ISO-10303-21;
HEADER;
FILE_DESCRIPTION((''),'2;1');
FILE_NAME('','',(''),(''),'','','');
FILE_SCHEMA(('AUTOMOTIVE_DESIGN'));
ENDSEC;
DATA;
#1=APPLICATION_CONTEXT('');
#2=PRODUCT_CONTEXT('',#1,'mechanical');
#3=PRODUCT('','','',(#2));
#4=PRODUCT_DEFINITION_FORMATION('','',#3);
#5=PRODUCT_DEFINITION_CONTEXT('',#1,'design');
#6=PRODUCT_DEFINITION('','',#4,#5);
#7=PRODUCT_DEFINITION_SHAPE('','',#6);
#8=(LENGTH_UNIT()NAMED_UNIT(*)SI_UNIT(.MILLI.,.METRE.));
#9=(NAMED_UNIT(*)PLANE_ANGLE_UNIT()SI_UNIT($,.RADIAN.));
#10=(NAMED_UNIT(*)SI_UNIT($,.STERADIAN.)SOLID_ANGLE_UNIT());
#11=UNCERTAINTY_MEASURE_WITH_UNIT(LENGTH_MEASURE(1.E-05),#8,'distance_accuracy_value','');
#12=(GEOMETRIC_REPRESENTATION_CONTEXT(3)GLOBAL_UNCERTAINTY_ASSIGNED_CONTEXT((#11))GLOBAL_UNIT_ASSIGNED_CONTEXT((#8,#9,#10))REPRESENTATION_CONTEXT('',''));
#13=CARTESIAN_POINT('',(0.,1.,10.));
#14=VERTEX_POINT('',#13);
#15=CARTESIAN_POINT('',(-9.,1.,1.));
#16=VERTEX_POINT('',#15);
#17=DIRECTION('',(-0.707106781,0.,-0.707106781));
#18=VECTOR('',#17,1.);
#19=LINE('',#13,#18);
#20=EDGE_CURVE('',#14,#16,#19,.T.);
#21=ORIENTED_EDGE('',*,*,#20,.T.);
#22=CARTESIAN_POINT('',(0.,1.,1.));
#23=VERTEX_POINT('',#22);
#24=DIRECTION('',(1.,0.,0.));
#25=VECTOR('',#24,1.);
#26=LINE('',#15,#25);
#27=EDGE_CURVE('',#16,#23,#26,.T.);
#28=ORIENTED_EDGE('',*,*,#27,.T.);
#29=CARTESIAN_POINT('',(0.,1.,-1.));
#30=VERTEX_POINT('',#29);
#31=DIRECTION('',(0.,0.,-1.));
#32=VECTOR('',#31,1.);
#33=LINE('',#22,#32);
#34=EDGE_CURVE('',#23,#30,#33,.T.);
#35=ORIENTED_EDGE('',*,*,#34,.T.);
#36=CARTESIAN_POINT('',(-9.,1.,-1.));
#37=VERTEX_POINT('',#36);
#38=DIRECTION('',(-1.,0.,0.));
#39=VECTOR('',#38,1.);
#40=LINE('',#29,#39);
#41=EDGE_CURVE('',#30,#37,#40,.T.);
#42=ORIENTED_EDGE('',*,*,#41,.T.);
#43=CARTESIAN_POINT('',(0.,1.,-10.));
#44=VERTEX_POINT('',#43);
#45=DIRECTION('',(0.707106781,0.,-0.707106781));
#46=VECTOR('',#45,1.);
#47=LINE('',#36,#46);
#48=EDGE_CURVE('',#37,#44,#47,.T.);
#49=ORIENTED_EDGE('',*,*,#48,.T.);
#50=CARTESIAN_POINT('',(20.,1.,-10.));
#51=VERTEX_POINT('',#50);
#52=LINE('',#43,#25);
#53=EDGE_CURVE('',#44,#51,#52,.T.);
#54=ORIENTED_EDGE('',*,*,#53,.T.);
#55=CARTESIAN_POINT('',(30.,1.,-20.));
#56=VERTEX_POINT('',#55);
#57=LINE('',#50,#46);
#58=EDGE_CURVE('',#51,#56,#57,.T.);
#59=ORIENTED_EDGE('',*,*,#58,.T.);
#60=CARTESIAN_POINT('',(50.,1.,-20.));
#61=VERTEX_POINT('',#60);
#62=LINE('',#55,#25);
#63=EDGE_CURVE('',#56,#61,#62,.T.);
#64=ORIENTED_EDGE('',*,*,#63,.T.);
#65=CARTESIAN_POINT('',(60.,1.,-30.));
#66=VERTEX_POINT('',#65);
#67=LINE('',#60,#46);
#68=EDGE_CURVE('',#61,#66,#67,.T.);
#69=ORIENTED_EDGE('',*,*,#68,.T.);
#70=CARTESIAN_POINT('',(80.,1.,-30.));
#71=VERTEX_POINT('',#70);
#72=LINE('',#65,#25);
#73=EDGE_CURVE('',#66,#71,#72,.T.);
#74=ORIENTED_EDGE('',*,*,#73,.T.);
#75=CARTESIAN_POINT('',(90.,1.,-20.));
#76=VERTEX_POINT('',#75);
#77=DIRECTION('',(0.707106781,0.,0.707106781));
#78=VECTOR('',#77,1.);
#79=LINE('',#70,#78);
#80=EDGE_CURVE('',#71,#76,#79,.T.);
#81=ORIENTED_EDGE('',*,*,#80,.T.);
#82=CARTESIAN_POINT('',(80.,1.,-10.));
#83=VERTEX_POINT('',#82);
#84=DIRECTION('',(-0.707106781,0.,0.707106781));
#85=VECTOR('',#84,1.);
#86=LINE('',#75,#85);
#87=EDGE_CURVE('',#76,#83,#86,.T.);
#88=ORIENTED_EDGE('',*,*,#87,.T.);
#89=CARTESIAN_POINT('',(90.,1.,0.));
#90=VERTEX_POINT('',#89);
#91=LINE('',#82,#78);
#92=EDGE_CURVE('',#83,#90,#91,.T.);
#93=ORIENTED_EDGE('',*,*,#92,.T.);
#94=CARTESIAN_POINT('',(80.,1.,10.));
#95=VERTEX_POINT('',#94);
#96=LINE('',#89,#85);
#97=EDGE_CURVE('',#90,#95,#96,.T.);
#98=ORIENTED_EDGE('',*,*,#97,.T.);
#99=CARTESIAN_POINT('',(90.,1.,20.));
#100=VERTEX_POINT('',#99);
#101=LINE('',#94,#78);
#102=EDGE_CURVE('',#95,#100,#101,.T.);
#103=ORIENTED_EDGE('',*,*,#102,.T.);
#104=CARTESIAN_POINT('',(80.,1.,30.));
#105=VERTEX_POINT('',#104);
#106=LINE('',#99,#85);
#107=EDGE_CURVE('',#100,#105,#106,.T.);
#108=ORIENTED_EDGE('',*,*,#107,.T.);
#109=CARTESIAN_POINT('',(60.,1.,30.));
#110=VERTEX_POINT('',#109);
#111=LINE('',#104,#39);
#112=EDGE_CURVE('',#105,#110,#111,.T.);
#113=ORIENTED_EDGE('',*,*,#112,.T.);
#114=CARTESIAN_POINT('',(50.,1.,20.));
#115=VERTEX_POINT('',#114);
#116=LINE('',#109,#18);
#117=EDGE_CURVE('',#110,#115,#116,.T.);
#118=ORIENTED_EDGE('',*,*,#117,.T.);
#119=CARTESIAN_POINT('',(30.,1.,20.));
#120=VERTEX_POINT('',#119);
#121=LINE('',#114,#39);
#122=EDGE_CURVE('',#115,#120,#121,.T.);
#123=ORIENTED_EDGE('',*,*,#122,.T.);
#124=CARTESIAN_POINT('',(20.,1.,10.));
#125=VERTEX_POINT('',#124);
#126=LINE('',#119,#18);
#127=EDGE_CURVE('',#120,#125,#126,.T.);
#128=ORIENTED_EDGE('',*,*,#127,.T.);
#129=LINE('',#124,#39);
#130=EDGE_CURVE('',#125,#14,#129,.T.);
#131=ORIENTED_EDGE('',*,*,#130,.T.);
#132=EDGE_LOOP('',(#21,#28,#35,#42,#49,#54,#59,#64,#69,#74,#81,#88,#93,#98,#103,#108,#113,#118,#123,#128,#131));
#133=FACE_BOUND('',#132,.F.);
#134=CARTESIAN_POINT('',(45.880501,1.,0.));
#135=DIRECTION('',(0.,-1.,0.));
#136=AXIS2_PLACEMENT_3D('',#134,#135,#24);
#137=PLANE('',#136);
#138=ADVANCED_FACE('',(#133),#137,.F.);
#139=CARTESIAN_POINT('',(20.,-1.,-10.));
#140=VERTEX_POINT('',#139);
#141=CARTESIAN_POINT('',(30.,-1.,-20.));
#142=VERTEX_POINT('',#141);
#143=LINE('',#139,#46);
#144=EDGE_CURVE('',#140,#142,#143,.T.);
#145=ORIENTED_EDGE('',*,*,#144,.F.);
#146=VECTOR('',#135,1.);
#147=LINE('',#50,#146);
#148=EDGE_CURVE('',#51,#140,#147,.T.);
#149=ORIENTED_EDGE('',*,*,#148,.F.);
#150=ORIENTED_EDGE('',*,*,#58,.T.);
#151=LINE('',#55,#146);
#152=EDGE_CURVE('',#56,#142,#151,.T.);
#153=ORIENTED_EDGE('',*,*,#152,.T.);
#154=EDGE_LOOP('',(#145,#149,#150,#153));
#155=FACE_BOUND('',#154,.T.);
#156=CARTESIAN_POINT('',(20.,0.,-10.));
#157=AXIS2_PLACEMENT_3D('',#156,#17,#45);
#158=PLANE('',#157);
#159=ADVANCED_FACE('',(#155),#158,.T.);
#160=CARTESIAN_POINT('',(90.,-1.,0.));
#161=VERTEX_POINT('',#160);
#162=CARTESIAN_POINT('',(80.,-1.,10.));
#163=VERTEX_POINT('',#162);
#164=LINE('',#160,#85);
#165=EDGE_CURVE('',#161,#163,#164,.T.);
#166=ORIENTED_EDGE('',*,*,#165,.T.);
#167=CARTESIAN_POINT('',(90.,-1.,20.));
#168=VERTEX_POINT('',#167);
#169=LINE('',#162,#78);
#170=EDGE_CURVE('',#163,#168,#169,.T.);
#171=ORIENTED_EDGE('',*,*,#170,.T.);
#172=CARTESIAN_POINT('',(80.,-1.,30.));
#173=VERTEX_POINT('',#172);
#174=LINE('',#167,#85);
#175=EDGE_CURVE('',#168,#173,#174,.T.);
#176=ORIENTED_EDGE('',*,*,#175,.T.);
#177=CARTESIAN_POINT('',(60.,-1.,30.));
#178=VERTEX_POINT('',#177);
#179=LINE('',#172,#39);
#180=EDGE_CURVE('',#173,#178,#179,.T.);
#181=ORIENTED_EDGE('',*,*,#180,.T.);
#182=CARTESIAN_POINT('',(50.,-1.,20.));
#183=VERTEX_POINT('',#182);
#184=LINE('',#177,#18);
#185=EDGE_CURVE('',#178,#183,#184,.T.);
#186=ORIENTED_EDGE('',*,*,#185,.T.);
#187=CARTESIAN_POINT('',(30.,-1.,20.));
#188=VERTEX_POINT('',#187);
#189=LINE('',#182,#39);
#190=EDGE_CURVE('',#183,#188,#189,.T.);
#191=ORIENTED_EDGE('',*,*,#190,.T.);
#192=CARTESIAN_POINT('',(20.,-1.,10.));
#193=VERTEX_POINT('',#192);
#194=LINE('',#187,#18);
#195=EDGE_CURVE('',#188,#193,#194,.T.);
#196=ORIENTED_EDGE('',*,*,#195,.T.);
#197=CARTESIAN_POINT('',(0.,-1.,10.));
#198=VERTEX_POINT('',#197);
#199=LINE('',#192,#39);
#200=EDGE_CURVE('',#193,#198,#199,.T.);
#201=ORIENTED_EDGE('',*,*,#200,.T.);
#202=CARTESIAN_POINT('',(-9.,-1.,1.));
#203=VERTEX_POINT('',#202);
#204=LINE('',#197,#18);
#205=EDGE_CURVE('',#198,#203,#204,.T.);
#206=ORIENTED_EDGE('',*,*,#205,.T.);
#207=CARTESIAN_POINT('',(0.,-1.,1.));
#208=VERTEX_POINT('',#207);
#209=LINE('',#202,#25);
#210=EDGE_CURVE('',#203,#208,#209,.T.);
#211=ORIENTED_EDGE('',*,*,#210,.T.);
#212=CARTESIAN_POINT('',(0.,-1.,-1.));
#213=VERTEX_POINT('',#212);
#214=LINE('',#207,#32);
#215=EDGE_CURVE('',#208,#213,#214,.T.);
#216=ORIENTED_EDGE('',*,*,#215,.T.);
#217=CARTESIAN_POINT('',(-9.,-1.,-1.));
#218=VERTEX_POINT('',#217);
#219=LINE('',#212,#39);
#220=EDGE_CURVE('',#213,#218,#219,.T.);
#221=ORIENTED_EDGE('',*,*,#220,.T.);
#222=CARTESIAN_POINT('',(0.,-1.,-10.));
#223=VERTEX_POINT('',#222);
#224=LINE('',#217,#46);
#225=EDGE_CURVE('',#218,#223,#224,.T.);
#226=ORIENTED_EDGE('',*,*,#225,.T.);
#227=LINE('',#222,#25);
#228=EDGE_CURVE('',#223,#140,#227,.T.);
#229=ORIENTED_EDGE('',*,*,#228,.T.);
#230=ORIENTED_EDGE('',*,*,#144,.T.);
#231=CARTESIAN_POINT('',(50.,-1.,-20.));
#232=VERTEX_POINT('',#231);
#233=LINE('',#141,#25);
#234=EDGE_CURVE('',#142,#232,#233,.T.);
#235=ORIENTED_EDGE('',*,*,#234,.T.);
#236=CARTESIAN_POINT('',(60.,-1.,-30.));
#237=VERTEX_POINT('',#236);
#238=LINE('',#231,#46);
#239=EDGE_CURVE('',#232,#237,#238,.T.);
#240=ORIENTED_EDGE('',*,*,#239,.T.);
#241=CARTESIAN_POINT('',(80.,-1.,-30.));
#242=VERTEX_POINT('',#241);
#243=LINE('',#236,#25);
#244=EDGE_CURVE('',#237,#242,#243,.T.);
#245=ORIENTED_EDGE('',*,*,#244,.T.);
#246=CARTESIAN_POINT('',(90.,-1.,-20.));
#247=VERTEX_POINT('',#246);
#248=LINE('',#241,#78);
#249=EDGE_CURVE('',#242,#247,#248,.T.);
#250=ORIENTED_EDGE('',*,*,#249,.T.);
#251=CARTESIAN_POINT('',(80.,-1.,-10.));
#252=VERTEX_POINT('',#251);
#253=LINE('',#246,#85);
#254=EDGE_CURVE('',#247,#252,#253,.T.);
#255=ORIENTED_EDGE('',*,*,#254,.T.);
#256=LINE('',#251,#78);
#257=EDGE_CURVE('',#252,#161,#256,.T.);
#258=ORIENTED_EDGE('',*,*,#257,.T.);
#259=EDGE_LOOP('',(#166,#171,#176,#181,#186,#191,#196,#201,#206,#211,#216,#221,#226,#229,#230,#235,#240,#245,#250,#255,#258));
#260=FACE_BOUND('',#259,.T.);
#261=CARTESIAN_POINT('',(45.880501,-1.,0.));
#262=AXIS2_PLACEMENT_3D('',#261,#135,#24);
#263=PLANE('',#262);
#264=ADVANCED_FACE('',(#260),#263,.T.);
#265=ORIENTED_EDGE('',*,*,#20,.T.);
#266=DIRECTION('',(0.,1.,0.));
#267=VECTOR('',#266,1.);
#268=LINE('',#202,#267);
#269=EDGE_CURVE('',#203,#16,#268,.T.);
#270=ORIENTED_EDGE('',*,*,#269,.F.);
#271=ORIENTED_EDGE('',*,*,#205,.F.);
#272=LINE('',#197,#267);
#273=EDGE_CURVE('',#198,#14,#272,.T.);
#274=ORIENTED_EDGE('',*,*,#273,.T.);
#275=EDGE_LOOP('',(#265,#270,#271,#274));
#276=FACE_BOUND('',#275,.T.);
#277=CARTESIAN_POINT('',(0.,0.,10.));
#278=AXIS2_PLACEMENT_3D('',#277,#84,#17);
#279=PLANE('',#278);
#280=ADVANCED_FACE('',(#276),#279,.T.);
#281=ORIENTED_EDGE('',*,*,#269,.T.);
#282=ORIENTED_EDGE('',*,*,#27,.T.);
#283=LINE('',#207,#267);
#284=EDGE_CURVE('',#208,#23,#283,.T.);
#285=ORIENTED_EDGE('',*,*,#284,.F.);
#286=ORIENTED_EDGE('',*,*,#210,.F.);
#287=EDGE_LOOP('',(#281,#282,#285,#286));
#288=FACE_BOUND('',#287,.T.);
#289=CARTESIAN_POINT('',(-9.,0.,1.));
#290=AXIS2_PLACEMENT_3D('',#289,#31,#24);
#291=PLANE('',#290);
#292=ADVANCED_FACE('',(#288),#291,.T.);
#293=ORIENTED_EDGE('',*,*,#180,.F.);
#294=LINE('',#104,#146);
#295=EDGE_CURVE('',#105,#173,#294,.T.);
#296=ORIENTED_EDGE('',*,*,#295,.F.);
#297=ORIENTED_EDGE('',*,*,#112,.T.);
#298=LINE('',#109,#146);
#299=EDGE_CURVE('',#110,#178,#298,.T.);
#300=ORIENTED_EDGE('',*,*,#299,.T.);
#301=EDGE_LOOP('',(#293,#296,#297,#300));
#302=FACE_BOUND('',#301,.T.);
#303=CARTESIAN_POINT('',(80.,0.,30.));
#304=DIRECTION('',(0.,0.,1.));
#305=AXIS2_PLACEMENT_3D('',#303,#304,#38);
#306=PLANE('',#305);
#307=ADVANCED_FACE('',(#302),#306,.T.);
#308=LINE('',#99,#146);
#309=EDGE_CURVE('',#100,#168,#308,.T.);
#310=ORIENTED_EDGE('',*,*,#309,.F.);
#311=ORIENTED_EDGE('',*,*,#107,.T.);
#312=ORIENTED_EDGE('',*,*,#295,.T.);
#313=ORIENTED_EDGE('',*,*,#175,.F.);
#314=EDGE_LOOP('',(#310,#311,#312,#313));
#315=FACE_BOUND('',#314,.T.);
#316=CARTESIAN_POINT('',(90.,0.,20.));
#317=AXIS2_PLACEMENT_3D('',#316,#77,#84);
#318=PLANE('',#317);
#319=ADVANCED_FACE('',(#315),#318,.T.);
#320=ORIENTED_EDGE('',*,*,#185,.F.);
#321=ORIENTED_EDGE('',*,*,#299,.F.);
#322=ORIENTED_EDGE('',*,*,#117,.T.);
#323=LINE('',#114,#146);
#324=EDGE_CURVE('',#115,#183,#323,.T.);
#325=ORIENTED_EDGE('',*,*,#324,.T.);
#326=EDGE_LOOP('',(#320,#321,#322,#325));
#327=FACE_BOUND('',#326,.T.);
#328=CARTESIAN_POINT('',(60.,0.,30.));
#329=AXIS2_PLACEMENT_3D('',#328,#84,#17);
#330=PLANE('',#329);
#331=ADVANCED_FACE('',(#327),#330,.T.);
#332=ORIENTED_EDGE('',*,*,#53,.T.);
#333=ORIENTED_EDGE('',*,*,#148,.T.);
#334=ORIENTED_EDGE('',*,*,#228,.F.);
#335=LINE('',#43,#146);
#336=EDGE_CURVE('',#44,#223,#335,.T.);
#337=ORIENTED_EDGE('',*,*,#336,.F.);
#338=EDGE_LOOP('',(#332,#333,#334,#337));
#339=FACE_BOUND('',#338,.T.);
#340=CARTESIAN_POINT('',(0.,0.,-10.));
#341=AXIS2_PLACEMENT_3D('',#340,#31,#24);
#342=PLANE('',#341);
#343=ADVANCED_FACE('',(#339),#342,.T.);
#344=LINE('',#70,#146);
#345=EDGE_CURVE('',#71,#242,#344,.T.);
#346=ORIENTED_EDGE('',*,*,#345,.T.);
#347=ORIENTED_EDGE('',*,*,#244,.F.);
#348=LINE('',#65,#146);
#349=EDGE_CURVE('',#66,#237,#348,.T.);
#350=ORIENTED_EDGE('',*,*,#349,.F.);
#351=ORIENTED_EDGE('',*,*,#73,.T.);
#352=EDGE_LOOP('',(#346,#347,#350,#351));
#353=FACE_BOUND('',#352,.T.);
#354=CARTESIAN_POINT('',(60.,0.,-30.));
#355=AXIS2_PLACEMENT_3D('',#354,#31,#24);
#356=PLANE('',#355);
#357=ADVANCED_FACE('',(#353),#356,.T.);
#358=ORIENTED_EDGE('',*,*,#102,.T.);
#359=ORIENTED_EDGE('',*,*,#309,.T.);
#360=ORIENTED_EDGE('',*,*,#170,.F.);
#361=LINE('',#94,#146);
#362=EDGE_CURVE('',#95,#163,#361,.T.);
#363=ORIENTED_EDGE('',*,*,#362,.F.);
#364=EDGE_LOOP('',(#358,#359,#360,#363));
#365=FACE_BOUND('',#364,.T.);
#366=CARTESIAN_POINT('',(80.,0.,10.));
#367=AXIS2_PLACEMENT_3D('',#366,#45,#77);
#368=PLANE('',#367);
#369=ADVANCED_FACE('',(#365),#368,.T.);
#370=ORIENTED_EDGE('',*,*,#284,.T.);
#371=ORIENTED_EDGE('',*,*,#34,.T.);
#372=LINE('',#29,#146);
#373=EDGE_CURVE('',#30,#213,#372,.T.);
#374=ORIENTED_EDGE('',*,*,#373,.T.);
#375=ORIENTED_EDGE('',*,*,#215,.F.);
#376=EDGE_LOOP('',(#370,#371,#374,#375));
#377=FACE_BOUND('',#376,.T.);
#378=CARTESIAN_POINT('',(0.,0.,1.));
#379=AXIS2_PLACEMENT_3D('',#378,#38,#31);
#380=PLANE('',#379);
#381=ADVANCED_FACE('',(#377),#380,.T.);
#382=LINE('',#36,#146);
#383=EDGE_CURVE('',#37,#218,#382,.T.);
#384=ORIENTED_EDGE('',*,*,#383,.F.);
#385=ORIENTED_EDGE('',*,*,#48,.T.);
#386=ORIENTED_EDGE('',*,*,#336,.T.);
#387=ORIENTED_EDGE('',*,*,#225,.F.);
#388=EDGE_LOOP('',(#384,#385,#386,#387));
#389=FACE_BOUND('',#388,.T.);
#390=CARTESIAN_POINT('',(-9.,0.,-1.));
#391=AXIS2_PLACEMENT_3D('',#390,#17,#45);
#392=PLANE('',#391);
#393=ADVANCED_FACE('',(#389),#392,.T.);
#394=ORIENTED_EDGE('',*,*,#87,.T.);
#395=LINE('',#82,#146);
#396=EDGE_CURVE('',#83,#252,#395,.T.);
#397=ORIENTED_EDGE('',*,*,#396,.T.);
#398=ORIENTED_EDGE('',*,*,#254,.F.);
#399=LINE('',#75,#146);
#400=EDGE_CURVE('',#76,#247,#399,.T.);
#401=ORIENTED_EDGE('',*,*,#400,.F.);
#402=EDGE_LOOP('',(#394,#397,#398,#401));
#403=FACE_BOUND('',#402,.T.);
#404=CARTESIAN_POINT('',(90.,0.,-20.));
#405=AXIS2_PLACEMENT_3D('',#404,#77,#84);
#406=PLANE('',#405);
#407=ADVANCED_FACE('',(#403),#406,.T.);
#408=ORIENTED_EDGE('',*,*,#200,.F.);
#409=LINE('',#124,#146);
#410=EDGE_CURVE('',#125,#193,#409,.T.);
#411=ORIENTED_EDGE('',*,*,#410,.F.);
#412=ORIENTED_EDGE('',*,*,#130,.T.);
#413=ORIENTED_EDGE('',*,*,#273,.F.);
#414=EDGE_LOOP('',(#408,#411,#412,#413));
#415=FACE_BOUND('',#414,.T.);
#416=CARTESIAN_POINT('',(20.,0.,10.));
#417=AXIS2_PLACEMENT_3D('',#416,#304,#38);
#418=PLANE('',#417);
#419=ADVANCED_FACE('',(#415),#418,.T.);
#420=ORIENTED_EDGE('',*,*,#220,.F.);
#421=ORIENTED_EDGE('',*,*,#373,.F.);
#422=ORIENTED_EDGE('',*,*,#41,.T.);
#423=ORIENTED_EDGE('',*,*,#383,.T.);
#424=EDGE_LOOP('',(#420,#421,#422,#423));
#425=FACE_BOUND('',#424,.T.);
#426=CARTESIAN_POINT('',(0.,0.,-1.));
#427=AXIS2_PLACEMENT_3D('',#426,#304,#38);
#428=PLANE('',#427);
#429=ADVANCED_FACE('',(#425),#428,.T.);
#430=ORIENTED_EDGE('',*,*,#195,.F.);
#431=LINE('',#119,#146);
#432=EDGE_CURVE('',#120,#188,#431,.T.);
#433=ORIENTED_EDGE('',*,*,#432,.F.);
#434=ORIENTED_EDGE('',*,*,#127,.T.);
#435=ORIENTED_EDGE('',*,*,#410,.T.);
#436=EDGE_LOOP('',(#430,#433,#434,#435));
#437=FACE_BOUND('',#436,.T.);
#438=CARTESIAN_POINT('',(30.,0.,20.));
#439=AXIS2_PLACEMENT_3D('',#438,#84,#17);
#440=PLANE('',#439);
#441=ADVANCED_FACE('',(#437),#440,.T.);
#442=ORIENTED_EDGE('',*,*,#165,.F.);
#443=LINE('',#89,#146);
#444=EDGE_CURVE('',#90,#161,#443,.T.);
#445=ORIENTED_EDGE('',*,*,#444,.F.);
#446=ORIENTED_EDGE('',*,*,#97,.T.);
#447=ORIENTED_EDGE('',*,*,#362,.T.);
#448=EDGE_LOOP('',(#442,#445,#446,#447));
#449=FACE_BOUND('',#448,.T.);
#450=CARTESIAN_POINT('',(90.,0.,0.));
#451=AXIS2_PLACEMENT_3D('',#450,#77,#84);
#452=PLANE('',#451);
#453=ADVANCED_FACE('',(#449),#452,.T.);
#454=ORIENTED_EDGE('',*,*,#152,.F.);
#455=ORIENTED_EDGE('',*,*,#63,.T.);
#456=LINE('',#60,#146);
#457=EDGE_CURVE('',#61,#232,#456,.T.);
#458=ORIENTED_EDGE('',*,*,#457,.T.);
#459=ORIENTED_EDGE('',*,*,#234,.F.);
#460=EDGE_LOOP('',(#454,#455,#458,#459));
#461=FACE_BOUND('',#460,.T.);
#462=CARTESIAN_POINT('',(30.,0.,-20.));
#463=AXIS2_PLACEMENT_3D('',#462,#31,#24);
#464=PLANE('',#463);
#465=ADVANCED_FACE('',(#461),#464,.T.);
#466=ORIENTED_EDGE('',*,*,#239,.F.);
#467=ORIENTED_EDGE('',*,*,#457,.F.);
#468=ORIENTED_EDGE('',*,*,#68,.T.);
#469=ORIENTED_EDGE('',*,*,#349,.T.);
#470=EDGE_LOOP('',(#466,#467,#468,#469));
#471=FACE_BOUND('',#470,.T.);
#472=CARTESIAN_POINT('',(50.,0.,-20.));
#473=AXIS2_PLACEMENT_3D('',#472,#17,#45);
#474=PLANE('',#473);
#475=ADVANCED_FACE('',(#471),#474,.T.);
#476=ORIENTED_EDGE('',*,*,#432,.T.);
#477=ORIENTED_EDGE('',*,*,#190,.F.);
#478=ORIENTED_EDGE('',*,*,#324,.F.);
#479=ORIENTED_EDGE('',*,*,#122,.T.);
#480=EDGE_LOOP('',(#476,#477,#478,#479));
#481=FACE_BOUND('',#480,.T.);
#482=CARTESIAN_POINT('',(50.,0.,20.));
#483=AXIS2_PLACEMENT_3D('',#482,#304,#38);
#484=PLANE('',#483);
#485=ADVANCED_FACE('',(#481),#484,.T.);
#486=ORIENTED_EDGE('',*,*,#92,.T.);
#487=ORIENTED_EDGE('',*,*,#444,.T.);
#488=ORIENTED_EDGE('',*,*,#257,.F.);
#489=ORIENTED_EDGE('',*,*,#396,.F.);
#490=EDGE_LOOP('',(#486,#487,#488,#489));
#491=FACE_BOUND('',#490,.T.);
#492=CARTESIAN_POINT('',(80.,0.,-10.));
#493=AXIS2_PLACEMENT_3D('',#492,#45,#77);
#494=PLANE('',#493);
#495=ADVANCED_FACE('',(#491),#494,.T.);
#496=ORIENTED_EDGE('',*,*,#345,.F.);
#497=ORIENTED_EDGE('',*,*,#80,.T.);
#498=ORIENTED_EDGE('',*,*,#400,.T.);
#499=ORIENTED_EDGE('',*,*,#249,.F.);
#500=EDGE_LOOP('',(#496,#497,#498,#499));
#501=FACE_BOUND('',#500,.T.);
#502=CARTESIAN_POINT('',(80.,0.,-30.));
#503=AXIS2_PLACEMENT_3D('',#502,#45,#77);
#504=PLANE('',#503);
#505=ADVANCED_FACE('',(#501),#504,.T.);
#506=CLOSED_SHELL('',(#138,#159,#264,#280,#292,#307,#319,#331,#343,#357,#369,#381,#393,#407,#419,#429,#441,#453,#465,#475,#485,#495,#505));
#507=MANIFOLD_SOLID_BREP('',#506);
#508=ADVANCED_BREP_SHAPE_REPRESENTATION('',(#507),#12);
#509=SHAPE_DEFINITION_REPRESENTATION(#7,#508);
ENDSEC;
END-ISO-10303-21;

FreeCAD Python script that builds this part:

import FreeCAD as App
import Part
import Sketcher

V = App.Vector
Q = App.Units.Quantity


def add_polygon(sketch, points):
    """Adds a closed chain of lines whose ends are joined by coincident constraints."""
    first, n = sketch.GeometryCount, len(points)
    for a, b in zip(points, points[1:] + points[:1]):
        sketch.addGeometry(Part.LineSegment(App.Vector(*a, 0), App.Vector(*b, 0)), False)
    for i in range(n):
        sketch.addConstraint(Sketcher.Constraint("Coincident", first + i, 2, first + (i + 1) % n, 1))

doc = App.newDocument("Part")
body = doc.addObject("PartDesign::Body", "Body")

sketch1 = doc.addObject("Sketcher::SketchObject", "Sketch")
body.addObject(sketch1)
sketch1.AttachmentSupport = (doc.XZ_Plane, [""])
sketch1.MapMode = "FlatFace"
add_polygon(sketch1, [(0, 1), (0, -1), (-9, -1), (0, -10), (20, -10), (30, -20), (50, -20), (60, -30), (80, -30), (90, -20), (80, -10), (90, 0), (80, 10), (90, 20), (80, 30), (60, 30), (50, 20), (30, 20), (20, 10), (0, 10), (-9, 1)])
sketch1.addConstraint([
    Sketcher.Constraint("Vertical", 0),
    Sketcher.Constraint("Horizontal", 1),
    Sketcher.Constraint("Horizontal", 3),
    Sketcher.Constraint("Horizontal", 5),
    Sketcher.Constraint("Horizontal", 7),
    Sketcher.Constraint("Horizontal", 14),
    Sketcher.Constraint("Horizontal", 16),
    Sketcher.Constraint("Horizontal", 18),
    Sketcher.Constraint("Horizontal", 20),
    Sketcher.Constraint("Symmetric", 2, 2, 18, 2, -1, 1),
    Sketcher.Constraint("Symmetric", 0, 2, 20, 2, -1, 1),
    Sketcher.Constraint("Symmetric", 9, 2, 11, 2, -1),
    Sketcher.Constraint("Symmetric", 8, 2, 12, 2, -1),
    Sketcher.Constraint("Symmetric", 7, 2, 13, 2, -1),
    Sketcher.Constraint("Symmetric", 5, 2, 15, 2, -1),
    Sketcher.Constraint("PointOnObject", 2, 2, -2),
    Sketcher.Constraint("PointOnObject", 10, 2, -1),
    Sketcher.Constraint("Parallel", 2, 4),
    Sketcher.Constraint("Parallel", 4, 6),
    Sketcher.Constraint("Perpendicular", 6, 8),
    Sketcher.Constraint("Perpendicular", 8, 9),
    Sketcher.Constraint("Perpendicular", 9, 10),
    Sketcher.Constraint("Perpendicular", 10, 11),
    Sketcher.Constraint("Perpendicular", 13, 15),
    Sketcher.Constraint("Parallel", 15, 17),
    Sketcher.Constraint("Parallel", 17, 19),
    Sketcher.Constraint("Horizontal", 5, 2, 8, 2),
    Sketcher.Constraint("Horizontal", 3, 2, 9, 2),
    Sketcher.Constraint("Vertical", 7, 2, 9, 2),
    Sketcher.Constraint("Vertical", 8, 2, 10, 2),
    Sketcher.Constraint("Vertical", 4, 2, 16, 2),
    Sketcher.Constraint("Equal", 3, 5),
    Sketcher.Constraint("Equal", 5, 7),
    Sketcher.Constraint("DistanceX", 1, 2, 1, 1, Q("9 mm")),
    Sketcher.Constraint("DistanceX", 3, 1, 3, 2, Q("20 mm")),
    Sketcher.Constraint("DistanceY", 0, 2, 0, 1, Q("2 mm")),
])
pad1 = doc.addObject("PartDesign::Pad", "Pad")
body.addObject(pad1)
pad1.Profile = sketch1
pad1.Type = "TwoLengths"
pad1.Length = 1
pad1.Length2 = 1

doc.recompute()
